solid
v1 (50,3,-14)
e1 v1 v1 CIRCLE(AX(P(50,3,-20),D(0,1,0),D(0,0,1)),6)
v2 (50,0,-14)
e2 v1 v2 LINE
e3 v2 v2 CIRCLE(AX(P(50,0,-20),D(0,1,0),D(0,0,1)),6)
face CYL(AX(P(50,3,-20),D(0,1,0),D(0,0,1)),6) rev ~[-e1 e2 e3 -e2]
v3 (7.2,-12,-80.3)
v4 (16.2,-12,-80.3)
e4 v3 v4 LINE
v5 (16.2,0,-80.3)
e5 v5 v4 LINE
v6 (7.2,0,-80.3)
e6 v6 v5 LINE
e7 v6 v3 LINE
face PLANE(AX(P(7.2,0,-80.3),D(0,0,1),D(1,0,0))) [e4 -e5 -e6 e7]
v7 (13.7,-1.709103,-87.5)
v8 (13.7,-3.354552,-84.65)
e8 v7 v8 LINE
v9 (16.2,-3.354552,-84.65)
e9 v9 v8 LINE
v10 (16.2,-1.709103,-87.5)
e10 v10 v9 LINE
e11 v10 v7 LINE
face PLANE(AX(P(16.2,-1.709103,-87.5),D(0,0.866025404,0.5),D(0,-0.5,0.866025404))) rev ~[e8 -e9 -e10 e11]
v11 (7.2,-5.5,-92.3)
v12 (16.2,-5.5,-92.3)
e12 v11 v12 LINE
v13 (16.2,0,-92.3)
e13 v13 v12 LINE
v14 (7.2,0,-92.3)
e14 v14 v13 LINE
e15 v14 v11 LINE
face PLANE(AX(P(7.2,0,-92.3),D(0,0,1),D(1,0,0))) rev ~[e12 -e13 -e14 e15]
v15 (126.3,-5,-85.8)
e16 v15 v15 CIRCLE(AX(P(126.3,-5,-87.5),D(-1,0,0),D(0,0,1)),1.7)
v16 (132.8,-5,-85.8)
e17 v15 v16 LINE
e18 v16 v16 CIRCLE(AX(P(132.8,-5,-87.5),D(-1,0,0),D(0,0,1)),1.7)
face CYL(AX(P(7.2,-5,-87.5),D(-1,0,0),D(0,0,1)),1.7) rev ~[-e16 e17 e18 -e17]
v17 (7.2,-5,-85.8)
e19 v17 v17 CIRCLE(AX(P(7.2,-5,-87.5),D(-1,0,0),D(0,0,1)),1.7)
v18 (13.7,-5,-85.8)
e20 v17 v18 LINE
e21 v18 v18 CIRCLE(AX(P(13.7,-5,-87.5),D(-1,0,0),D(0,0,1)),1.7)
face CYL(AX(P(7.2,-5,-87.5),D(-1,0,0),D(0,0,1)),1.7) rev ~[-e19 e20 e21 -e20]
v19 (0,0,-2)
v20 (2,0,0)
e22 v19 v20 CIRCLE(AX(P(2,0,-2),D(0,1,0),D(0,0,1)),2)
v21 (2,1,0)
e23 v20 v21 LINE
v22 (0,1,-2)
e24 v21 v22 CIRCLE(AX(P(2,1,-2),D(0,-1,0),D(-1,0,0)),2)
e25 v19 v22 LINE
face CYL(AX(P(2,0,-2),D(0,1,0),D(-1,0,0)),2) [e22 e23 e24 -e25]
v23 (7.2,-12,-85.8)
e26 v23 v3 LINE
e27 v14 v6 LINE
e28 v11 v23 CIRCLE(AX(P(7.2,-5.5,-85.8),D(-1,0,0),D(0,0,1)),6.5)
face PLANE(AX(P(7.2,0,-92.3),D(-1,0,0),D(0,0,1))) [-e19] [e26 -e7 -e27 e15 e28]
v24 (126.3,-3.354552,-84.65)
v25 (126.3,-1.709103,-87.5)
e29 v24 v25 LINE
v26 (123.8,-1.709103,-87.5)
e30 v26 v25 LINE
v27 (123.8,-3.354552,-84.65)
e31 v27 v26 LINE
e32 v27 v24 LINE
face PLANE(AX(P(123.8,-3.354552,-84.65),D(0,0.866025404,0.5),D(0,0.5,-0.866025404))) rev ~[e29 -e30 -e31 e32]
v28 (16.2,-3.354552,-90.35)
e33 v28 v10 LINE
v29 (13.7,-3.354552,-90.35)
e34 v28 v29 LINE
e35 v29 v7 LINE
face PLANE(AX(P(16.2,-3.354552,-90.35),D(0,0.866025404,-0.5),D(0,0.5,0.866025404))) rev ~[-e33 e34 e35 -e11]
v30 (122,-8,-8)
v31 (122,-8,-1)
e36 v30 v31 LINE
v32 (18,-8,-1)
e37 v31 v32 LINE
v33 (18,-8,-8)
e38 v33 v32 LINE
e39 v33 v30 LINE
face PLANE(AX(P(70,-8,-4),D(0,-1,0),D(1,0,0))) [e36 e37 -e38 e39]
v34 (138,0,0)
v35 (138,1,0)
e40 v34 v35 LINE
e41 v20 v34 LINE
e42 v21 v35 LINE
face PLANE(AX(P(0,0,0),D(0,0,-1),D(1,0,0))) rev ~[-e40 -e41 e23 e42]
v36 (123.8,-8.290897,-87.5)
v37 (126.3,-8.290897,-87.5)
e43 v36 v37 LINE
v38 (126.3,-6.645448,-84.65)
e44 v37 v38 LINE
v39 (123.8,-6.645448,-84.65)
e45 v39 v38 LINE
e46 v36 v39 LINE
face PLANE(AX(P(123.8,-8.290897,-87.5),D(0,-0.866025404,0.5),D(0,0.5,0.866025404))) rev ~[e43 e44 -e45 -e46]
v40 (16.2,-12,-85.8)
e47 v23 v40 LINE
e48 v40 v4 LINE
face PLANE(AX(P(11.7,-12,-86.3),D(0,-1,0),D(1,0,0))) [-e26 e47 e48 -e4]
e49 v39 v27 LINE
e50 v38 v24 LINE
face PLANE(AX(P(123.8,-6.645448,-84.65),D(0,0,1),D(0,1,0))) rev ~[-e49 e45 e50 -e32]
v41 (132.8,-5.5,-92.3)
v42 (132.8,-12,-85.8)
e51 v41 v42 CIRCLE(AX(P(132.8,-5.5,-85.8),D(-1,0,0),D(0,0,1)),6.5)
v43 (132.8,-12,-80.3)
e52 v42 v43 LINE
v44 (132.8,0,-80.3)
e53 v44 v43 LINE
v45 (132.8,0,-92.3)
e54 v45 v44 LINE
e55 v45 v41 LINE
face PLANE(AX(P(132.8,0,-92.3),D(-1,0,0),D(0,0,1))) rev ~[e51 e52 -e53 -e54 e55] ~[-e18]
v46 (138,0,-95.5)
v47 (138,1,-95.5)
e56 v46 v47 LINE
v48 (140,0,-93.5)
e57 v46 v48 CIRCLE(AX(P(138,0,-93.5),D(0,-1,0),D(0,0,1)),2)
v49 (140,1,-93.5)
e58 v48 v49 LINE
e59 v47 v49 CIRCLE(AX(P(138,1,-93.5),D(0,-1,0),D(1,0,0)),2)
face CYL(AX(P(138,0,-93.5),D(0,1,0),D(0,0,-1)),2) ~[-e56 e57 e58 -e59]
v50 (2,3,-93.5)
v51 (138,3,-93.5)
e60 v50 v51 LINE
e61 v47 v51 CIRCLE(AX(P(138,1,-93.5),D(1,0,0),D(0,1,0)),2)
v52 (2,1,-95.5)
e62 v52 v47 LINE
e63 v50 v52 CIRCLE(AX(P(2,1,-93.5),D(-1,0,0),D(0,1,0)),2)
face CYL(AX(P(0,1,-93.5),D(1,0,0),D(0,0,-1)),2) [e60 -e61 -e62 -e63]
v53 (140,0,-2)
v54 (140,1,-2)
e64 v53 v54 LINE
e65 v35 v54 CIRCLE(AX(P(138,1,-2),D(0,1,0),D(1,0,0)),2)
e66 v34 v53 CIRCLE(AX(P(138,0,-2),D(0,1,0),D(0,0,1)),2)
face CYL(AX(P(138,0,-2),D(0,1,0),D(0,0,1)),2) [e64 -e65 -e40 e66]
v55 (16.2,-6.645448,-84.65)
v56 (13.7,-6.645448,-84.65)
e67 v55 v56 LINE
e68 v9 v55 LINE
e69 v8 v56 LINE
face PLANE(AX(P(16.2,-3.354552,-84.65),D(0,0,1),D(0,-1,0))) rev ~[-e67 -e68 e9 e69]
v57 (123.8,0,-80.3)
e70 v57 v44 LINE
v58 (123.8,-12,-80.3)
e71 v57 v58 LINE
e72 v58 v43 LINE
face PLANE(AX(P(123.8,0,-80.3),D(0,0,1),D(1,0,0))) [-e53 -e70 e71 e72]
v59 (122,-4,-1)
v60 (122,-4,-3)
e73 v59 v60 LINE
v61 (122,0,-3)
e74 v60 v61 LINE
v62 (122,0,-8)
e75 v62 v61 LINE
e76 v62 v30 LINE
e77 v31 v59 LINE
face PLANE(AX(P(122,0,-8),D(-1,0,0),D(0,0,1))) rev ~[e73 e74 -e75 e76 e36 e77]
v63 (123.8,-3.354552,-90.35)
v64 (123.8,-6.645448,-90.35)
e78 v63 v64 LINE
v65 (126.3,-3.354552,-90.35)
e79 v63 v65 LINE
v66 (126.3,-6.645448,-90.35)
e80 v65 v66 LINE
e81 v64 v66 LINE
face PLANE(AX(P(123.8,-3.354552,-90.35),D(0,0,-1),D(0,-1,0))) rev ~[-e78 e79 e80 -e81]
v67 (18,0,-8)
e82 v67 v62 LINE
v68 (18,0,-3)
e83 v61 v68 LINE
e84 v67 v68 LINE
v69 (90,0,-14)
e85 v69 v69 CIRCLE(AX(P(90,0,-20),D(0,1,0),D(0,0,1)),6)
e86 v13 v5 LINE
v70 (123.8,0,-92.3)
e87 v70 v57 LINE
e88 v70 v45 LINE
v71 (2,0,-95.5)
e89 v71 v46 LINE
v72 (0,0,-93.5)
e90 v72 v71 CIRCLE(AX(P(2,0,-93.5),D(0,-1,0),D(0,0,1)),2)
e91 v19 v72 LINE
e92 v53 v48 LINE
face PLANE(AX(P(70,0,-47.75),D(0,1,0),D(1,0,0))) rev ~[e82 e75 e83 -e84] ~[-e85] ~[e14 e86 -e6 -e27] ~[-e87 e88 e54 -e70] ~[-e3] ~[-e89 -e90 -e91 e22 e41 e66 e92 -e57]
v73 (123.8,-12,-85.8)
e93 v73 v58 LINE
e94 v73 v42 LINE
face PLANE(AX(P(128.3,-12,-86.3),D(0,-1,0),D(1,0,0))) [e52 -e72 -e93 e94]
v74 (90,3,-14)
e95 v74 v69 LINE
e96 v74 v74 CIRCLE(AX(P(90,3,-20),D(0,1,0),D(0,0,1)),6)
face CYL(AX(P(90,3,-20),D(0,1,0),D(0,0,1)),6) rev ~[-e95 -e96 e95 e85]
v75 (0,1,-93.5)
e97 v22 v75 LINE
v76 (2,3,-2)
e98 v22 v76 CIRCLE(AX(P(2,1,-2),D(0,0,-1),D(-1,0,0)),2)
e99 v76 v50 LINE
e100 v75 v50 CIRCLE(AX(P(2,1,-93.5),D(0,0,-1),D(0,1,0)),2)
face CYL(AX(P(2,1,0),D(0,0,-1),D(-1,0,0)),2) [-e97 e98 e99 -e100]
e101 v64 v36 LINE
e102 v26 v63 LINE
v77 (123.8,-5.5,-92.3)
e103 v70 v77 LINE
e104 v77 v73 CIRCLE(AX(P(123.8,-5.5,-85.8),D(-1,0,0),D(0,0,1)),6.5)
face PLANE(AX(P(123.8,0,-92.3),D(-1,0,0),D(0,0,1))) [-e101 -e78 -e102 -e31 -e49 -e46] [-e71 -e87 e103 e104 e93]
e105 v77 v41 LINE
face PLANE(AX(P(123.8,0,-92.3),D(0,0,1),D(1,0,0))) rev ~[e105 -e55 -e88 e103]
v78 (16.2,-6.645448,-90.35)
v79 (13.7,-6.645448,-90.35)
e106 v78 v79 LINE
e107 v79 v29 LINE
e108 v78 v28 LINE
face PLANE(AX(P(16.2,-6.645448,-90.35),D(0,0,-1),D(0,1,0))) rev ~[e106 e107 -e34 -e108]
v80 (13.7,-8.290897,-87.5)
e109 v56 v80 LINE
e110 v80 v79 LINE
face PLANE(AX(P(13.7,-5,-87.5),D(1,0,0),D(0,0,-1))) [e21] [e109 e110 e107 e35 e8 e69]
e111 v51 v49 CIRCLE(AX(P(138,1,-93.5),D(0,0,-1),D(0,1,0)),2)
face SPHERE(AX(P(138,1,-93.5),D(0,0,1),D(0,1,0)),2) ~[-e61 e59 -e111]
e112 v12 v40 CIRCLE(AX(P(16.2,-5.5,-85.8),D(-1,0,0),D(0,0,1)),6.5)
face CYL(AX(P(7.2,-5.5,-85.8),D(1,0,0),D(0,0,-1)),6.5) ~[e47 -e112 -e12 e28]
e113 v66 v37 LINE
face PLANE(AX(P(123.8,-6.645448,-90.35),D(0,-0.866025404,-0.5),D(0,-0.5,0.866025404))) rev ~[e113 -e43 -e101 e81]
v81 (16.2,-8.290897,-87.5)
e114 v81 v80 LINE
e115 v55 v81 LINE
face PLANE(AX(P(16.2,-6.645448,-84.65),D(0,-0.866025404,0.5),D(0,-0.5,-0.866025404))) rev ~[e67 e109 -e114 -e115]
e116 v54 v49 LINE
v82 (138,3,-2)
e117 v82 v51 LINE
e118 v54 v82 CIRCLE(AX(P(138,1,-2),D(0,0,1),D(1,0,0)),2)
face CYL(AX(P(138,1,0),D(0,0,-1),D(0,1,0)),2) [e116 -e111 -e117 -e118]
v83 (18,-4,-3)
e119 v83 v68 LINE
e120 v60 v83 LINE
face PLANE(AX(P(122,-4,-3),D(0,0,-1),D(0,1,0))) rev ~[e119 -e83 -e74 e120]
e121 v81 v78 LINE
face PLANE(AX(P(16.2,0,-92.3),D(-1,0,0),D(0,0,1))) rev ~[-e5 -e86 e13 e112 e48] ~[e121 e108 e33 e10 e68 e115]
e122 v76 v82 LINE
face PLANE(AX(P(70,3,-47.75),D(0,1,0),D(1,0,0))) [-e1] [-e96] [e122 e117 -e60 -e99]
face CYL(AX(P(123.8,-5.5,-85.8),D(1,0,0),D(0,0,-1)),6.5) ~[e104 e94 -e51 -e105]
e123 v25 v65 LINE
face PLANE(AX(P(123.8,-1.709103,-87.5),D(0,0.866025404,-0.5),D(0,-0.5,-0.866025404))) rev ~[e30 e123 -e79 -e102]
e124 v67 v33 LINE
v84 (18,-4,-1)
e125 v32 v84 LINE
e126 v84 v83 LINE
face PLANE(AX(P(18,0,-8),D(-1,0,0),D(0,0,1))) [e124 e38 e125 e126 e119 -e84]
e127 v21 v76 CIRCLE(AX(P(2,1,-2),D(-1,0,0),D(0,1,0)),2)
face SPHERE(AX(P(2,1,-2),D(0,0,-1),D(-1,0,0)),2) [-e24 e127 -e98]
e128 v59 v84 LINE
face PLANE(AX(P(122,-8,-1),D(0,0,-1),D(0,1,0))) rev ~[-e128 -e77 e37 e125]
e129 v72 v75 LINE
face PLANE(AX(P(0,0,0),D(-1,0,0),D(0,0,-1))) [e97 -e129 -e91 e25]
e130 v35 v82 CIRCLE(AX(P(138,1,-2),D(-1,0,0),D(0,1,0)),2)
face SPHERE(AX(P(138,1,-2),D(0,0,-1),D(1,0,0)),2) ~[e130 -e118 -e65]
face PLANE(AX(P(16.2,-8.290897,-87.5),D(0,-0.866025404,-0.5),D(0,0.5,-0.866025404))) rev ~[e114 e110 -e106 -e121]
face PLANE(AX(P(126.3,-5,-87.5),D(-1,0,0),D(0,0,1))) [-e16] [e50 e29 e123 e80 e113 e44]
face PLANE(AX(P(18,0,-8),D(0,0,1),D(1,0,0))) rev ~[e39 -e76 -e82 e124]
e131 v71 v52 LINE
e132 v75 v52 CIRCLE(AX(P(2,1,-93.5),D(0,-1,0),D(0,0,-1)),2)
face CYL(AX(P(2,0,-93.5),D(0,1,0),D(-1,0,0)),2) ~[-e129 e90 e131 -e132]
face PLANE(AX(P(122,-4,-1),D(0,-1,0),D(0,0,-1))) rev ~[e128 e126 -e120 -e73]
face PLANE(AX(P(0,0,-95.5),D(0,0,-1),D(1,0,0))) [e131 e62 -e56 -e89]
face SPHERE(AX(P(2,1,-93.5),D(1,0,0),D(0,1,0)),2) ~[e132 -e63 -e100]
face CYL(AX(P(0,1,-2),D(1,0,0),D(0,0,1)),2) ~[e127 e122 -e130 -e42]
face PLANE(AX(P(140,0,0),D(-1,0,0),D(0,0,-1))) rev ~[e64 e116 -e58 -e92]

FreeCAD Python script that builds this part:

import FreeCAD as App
import Part
import Sketcher
from FreeCAD import Vector
Q = App.Units.Quantity


def edges_at(feature, points):
    """Names of the edges that pass closest to the given points."""
    edges = feature.Shape.Edges
    near = lambda p: min(range(len(edges)), key=lambda i: edges[i].distToShape(Part.Vertex(*p))[0])
    return sorted({f"Edge{near(p) + 1}" for p in points})


def add_polygon(sketch, points):
    """Adds a closed chain of lines whose ends are joined by coincident constraints."""
    first, n = sketch.GeometryCount, len(points)
    for a, b in zip(points, points[1:] + points[:1]):
        sketch.addGeometry(Part.LineSegment(App.Vector(*a, 0), App.Vector(*b, 0)), False)
    for i in range(n):
        sketch.addConstraint(Sketcher.Constraint("Coincident", first + i, 2, first + (i + 1) % n, 1))

doc = App.newDocument("Part")
body = doc.addObject("PartDesign::Body", "Body")

sketch1 = body.newObject("Sketcher::SketchObject", "Sketch")
sketch1.AttachmentSupport = (doc.getObject("XZ_Plane"), [""])
sketch1.MapMode = "FlatFace"
add_polygon(sketch1, [(0, -96), (0, 0), (140, 0), (140, -96)])
sketch1.addConstraint([
    Sketcher.Constraint("Vertical", 0),
    Sketcher.Constraint("Horizontal", 1),
    Sketcher.Constraint("Vertical", 2),
    Sketcher.Constraint("Horizontal", 3),
    Sketcher.Constraint("Coincident", 0, 2, -1, 1),
    Sketcher.Constraint("DistanceX", 1, 1, 1, 2, 140.0),
    Sketcher.Constraint("DistanceY", 0, 1, 0, 2, 95.5),
])
pad1 = body.newObject("PartDesign::Pad", "Pad")
pad1.Profile = sketch1
pad1.Length = 3
pad1.Reversed = True

sketch2 = body.newObject("Sketcher::SketchObject", "Sketch001")
sketch2.AttachmentSupport = (doc.getObject("XZ_Plane"), [""])
sketch2.MapMode = "FlatFace"
sketch2.AttachmentOffset = App.Placement(Vector(0, 0, -3), App.Rotation())
sketch2.addGeometry([
    Part.Circle(Vector(50, -20, 0), Vector(0, 0, 1), 6),
    Part.Circle(Vector(90, -20, 0), Vector(0, 0, 1), 6),
], False)
sketch2.addConstraint([
    Sketcher.Constraint("Equal", 0, 1),
    Sketcher.Constraint("Horizontal", 0, 3, 1, 3),
    Sketcher.Constraint("Diameter", 0, 12.0),
    Sketcher.Constraint("DistanceX", -1, 1, 0, 3, 50.0),
    Sketcher.Constraint("DistanceY", 0, 3, -1, 1, 20.0),
    Sketcher.Constraint("DistanceX", -1, 1, 1, 3, 90.0),
])
pocket1 = body.newObject("PartDesign::Pocket", "Pocket")
pocket1.Profile = sketch2
pocket1.Length = 3
pocket1.Reversed = True

sketch3 = body.newObject("Sketcher::SketchObject", "Sketch002")
sketch3.AttachmentSupport = (doc.getObject("XZ_Plane"), [""])
sketch3.MapMode = "FlatFace"
add_polygon(sketch3, [(18, 0), (18, -8), (122, -8), (122, 0)])
sketch3.addConstraint([
    Sketcher.Constraint("Vertical", 0),
    Sketcher.Constraint("Horizontal", 1),
    Sketcher.Constraint("Vertical", 2),
    Sketcher.Constraint("Horizontal", 3),
    Sketcher.Constraint("PointOnObject", 2, 2, -1),
    Sketcher.Constraint("DistanceX", 1, 1, 1, 2, 104.0),
    Sketcher.Constraint("DistanceY", 0, 2, 0, 1, 8.0),
    Sketcher.Constraint("DistanceX", -1, 1, 0, 2, 18.0),
])
pad2 = body.newObject("PartDesign::Pad", "Pad001")
pad2.Profile = sketch3
pad2.Length = 8

sketch4 = body.newObject("Sketcher::SketchObject", "Sketch003")
sketch4.AttachmentSupport = (doc.getObject("YZ_Plane"), [""])
sketch4.MapMode = "FlatFace"
sketch4.AttachmentOffset = App.Placement(Vector(0, 0, 122), App.Rotation())
add_polygon(sketch4, [(0, 0), (-8, 0), (-8, -1), (-4, -1), (-4, -3), (0, -3)])
sketch4.addConstraint([
    Sketcher.Constraint("Horizontal", 0),
    Sketcher.Constraint("Vertical", 1),
    Sketcher.Constraint("Horizontal", 2),
    Sketcher.Constraint("Vertical", 3),
    Sketcher.Constraint("Horizontal", 4),
    Sketcher.Constraint("Vertical", 5),
    Sketcher.Constraint("Coincident", 5, 2, -1, 1),
    Sketcher.Constraint("Equal", 2, 4),
    Sketcher.Constraint("DistanceX", 0, 2, 0, 1, 8.0),
    Sketcher.Constraint("DistanceY", 1, 2, 1, 1, 1.0),
    Sketcher.Constraint("DistanceY", 3, 2, 3, 1, 2.0),
])
pocket2 = body.newObject("PartDesign::Pocket", "Pocket001")
pocket2.Profile = sketch4
pocket2.Length = 104

sketch5 = body.newObject("Sketcher::SketchObject", "Sketch004")
sketch5.AttachmentSupport = (doc.getObject("XZ_Plane"), [""])
sketch5.MapMode = "FlatFace"
add_polygon(sketch5, [(7, -80), (7, -92), (16, -92), (16, -80)])
add_polygon(sketch5, [(124, -80), (124, -92), (133, -92), (133, -80)])
sketch5.addConstraint([
    Sketcher.Constraint("Vertical", 0),
    Sketcher.Constraint("Horizontal", 1),
    Sketcher.Constraint("Vertical", 2),
    Sketcher.Constraint("Horizontal", 3),
    Sketcher.Constraint("Vertical", 4),
    Sketcher.Constraint("Horizontal", 5),
    Sketcher.Constraint("Vertical", 6),
    Sketcher.Constraint("Horizontal", 7),
    Sketcher.Constraint("Horizontal", 1, 2, 4, 2),
    Sketcher.Constraint("Horizontal", 3, 2, 6, 2),
    Sketcher.Constraint("Equal", 3, 5),
    Sketcher.Constraint("DistanceX", 1, 1, 1, 2, 9.0),
    Sketcher.Constraint("DistanceY", 0, 2, 0, 1, 12.0),
    Sketcher.Constraint("DistanceX", -1, 1, 0, 2, 7.2),
    Sketcher.Constraint("DistanceY", 0, 2, -1, 1, 92.3),
    Sketcher.Constraint("DistanceX", -1, 1, 4, 2, 123.8),
])
pad3 = body.newObject("PartDesign::Pad", "Pad002")
pad3.Profile = sketch5
pad3.Length = 12
doc.recompute()

fillet = body.newObject("PartDesign::Fillet", "Fillet")
fillet.Base = (pad3, edges_at(pad3, [
    (140, 3, -47.75),
    (70, 3, -95.5),
    (0, 3, -47.75),
    (0, 1.5, -95.5),
    (140, 1.5, -95.5),
    (140, 1.5, 0),
    (0, 1.5, 0),
    (70, 3, 0),
]))
fillet.Radius = 2
doc.recompute()

fillet2 = body.newObject("PartDesign::Fillet", "Fillet001")
fillet2.Base = (fillet, edges_at(fillet, [(11.7, -12, -92.3), (128.3, -12, -92.3)]))
fillet2.Radius = 6.5

sketch6 = body.newObject("Sketcher::SketchObject", "Sketch005")
sketch6.AttachmentSupport = (doc.getObject("YZ_Plane"), [""])
sketch6.MapMode = "FlatFace"
sketch6.AttachmentOffset = App.Placement(Vector(0, 0, 7.2), App.Rotation())
sketch6.addGeometry(Part.Circle(Vector(-5, -87.5, 0), Vector(0, 0, 1), 1.7), False)
sketch6.addConstraint([
    Sketcher.Constraint("Diameter", 0, 3.4),
    Sketcher.Constraint("DistanceX", 0, 3, -1, 1, 5.0),
    Sketcher.Constraint("DistanceY", 0, 3, -1, 1, 87.5),
])
pocket3 = body.newObject("PartDesign::Pocket", "Pocket002")
pocket3.Profile = sketch6
pocket3.Type = "ThroughAll"
pocket3.Reversed = True

sketch7 = body.newObject("Sketcher::SketchObject", "Sketch006")
sketch7.AttachmentSupport = (doc.getObject("YZ_Plane"), [""])
sketch7.MapMode = "FlatFace"
sketch7.AttachmentOffset = App.Placement(Vector(0, 0, 123.8), App.Rotation())
add_polygon(sketch7, [(-6.6, -90.3), (-8.3, -87.5), (-6.6, -84.7), (-3.4, -84.7), (-1.7, -87.5), (-3.4, -90.3)])
sketch7.addConstraint([
    Sketcher.Constraint("Horizontal", 2),
    Sketcher.Constraint("Horizontal", 5),
    Sketcher.Constraint("Parallel", 0, 3),
    Sketcher.Constraint("Parallel", 1, 4),
    Sketcher.Constraint("Horizontal", 0, 2, 3, 2),
    Sketcher.Constraint("Vertical", 2, 2, 4, 2),
    Sketcher.Constraint("Vertical", 1, 2, 5, 2),
    Sketcher.Constraint("Angle", 0, Q("120 deg")),
    Sketcher.Constraint("DistanceY", 0, 2, -1, 1, 87.5),
    Sketcher.Constraint("DistanceY", 4, 2, 2, 2, 5.7),
    Sketcher.Constraint("DistanceX", 2, 1, 2, 2, 3.290897),
    Sketcher.Constraint("DistanceX", 1, 2, -1, 1, 6.645448),
])
pocket4 = body.newObject("PartDesign::Pocket", "Pocket003")
pocket4.Profile = sketch7
pocket4.Length = 2.5
pocket4.Reversed = True

sketch8 = body.newObject("Sketcher::SketchObject", "Sketch007")
sketch8.AttachmentSupport = (doc.getObject("YZ_Plane"), [""])
sketch8.MapMode = "FlatFace"
sketch8.AttachmentOffset = App.Placement(Vector(0, 0, 16.2), App.Rotation())
add_polygon(sketch8, [(-6.6, -84.7), (-8.3, -87.5), (-6.6, -90.3), (-3.4, -90.3), (-1.7, -87.5), (-3.4, -84.7)])
sketch8.addConstraint([
    Sketcher.Constraint("Horizontal", 2),
    Sketcher.Constraint("Horizontal", 5),
    Sketcher.Constraint("Parallel", 0, 3),
    Sketcher.Constraint("Parallel", 1, 4),
    Sketcher.Constraint("Horizontal", 0, 2, 3, 2),
    Sketcher.Constraint("Vertical", 2, 2, 4, 2),
    Sketcher.Constraint("Vertical", 1, 2, 5, 2),
    Sketcher.Constraint("Angle", 0, Q("-120 deg")),
    Sketcher.Constraint("DistanceY", 0, 2, -1, 1, 87.5),
    Sketcher.Constraint("DistanceY", 2, 2, 4, 2, 5.7),
    Sketcher.Constraint("DistanceX", 2, 1, 2, 2, 3.290897),
    Sketcher.Constraint("DistanceX", 1, 2, -1, 1, 6.645448),
])
pocket5 = body.newObject("PartDesign::Pocket", "Pocket004")
pocket5.Profile = sketch8
pocket5.Length = 2.5

doc.recompute()
